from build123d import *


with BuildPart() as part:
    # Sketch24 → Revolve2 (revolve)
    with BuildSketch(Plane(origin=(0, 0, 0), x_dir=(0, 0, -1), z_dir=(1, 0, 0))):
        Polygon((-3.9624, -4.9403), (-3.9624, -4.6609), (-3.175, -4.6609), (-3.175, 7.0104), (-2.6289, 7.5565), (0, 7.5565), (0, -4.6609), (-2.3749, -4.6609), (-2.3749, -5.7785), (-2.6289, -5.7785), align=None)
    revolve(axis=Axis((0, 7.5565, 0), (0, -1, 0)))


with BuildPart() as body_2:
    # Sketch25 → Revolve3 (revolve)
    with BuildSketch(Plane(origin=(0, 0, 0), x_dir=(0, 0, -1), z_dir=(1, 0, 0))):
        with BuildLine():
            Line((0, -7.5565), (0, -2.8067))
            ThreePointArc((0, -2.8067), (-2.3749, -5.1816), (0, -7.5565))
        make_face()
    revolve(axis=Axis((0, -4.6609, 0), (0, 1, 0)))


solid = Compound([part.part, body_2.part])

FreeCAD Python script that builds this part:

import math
import FreeCAD as App
import Part
import Sketcher

V = App.Vector
Q = App.Units.Quantity


def add_polygon(sketch, points):
    """Adds a closed chain of lines whose ends are joined by coincident constraints."""
    first, n = sketch.GeometryCount, len(points)
    for a, b in zip(points, points[1:] + points[:1]):
        sketch.addGeometry(Part.LineSegment(App.Vector(*a, 0), App.Vector(*b, 0)), False)
    for i in range(n):
        sketch.addConstraint(Sketcher.Constraint("Coincident", first + i, 2, first + (i + 1) % n, 1))

doc = App.newDocument("Part")
body = doc.addObject("PartDesign::Body", "Body")

sketch1 = doc.addObject("Sketcher::SketchObject", "Sketch")
body.addObject(sketch1)
sketch1.AttachmentSupport = (doc.YZ_Plane, [""])
sketch1.MapMode = "FlatFace"
add_polygon(sketch1, [(-4.66, 3.96), (-4.94, 3.96), (-5.78, 2.63), (-5.78, 2.37), (-4.66, 2.37), (-4.66, 0), (7.56, 0), (7.56, 2.63), (7.01, 3.17), (-4.66, 3.17)])
sketch1.addConstraint([
    Sketcher.Constraint("Horizontal", 0),
    Sketcher.Constraint("Vertical", 2),
    Sketcher.Constraint("Horizontal", 3),
    Sketcher.Constraint("Vertical", 4),
    Sketcher.Constraint("Horizontal", 5),
    Sketcher.Constraint("Vertical", 6),
    Sketcher.Constraint("Horizontal", 8),
    Sketcher.Constraint("Vertical", 9),
    Sketcher.Constraint("PointOnObject", 4, 2, -1),
    Sketcher.Constraint("Horizontal", 1, 2, 6, 2),
    Sketcher.Constraint("Vertical", 4, 2, 8, 2),
    Sketcher.Constraint("Angle", 7, Q("135 deg")),
    Sketcher.Constraint("DistanceY", 2, 2, 2, 1, Q("0.01 in")),
    Sketcher.Constraint("DistanceX", 0, 2, 0, 1, Q("0.011 in")),
    Sketcher.Constraint("DistanceX", 3, 1, 3, 2, Q("0.044 in")),
    Sketcher.Constraint("DistanceX", 5, 1, 5, 2, Q("0.481 in")),
    Sketcher.Constraint("DistanceY", 9, 1, 9, 2, Q("0.031 in")),
    Sketcher.Constraint("DistanceX", 8, 2, 8, 1, Q("0.4595 in")),
    Sketcher.Constraint("DistanceY", 4, 2, 4, 1, Q("0.0935 in")),
    Sketcher.Constraint("DistanceX", -1, 1, 7, 2, Q("0.276 in")),
])
revolution = doc.addObject("PartDesign::Revolution", "Revolution")
body.addObject(revolution)
revolution.Profile = sketch1
revolution.ReferenceAxis = (sketch1, ["H_Axis"])
revolution.Angle = 360
body2 = doc.addObject("PartDesign::Body", "Body001")

sketch2 = doc.addObject("Sketcher::SketchObject", "Sketch001")
body2.addObject(sketch2)
sketch2.AttachmentSupport = (doc.getObject("YZ_Plane001"), [""])
sketch2.MapMode = "FlatFace"
sketch2.addGeometry([
    Part.LineSegment(V(-7.6, 0, 0), V(-2.8, 0, 0)),
    Part.ArcOfCircle(Part.Circle(V(-5.2, 0, 0), V(0, 0, 1), 2.4), math.radians(0), math.radians(180)),
], False)
sketch2.addConstraint([
    Sketcher.Constraint("Coincident", 0, 1, 1, 2),
    Sketcher.Constraint("Coincident", 1, 1, 0, 2),
    Sketcher.Constraint("Horizontal", 0),
    Sketcher.Constraint("PointOnObject", 1, 3, -1),
    Sketcher.Constraint("PointOnObject", 0, 1, -1),
    Sketcher.Constraint("Radius", 1, Q("0.0935 in")),
    Sketcher.Constraint("DistanceX", 1, 3, -1, 1, Q("0.204 in")),
])
revolution2 = doc.addObject("PartDesign::Revolution", "Revolution001")
body2.addObject(revolution2)
revolution2.Profile = sketch2
revolution2.ReferenceAxis = (sketch2, ["H_Axis"])
revolution2.Angle = 360

doc.recompute()
